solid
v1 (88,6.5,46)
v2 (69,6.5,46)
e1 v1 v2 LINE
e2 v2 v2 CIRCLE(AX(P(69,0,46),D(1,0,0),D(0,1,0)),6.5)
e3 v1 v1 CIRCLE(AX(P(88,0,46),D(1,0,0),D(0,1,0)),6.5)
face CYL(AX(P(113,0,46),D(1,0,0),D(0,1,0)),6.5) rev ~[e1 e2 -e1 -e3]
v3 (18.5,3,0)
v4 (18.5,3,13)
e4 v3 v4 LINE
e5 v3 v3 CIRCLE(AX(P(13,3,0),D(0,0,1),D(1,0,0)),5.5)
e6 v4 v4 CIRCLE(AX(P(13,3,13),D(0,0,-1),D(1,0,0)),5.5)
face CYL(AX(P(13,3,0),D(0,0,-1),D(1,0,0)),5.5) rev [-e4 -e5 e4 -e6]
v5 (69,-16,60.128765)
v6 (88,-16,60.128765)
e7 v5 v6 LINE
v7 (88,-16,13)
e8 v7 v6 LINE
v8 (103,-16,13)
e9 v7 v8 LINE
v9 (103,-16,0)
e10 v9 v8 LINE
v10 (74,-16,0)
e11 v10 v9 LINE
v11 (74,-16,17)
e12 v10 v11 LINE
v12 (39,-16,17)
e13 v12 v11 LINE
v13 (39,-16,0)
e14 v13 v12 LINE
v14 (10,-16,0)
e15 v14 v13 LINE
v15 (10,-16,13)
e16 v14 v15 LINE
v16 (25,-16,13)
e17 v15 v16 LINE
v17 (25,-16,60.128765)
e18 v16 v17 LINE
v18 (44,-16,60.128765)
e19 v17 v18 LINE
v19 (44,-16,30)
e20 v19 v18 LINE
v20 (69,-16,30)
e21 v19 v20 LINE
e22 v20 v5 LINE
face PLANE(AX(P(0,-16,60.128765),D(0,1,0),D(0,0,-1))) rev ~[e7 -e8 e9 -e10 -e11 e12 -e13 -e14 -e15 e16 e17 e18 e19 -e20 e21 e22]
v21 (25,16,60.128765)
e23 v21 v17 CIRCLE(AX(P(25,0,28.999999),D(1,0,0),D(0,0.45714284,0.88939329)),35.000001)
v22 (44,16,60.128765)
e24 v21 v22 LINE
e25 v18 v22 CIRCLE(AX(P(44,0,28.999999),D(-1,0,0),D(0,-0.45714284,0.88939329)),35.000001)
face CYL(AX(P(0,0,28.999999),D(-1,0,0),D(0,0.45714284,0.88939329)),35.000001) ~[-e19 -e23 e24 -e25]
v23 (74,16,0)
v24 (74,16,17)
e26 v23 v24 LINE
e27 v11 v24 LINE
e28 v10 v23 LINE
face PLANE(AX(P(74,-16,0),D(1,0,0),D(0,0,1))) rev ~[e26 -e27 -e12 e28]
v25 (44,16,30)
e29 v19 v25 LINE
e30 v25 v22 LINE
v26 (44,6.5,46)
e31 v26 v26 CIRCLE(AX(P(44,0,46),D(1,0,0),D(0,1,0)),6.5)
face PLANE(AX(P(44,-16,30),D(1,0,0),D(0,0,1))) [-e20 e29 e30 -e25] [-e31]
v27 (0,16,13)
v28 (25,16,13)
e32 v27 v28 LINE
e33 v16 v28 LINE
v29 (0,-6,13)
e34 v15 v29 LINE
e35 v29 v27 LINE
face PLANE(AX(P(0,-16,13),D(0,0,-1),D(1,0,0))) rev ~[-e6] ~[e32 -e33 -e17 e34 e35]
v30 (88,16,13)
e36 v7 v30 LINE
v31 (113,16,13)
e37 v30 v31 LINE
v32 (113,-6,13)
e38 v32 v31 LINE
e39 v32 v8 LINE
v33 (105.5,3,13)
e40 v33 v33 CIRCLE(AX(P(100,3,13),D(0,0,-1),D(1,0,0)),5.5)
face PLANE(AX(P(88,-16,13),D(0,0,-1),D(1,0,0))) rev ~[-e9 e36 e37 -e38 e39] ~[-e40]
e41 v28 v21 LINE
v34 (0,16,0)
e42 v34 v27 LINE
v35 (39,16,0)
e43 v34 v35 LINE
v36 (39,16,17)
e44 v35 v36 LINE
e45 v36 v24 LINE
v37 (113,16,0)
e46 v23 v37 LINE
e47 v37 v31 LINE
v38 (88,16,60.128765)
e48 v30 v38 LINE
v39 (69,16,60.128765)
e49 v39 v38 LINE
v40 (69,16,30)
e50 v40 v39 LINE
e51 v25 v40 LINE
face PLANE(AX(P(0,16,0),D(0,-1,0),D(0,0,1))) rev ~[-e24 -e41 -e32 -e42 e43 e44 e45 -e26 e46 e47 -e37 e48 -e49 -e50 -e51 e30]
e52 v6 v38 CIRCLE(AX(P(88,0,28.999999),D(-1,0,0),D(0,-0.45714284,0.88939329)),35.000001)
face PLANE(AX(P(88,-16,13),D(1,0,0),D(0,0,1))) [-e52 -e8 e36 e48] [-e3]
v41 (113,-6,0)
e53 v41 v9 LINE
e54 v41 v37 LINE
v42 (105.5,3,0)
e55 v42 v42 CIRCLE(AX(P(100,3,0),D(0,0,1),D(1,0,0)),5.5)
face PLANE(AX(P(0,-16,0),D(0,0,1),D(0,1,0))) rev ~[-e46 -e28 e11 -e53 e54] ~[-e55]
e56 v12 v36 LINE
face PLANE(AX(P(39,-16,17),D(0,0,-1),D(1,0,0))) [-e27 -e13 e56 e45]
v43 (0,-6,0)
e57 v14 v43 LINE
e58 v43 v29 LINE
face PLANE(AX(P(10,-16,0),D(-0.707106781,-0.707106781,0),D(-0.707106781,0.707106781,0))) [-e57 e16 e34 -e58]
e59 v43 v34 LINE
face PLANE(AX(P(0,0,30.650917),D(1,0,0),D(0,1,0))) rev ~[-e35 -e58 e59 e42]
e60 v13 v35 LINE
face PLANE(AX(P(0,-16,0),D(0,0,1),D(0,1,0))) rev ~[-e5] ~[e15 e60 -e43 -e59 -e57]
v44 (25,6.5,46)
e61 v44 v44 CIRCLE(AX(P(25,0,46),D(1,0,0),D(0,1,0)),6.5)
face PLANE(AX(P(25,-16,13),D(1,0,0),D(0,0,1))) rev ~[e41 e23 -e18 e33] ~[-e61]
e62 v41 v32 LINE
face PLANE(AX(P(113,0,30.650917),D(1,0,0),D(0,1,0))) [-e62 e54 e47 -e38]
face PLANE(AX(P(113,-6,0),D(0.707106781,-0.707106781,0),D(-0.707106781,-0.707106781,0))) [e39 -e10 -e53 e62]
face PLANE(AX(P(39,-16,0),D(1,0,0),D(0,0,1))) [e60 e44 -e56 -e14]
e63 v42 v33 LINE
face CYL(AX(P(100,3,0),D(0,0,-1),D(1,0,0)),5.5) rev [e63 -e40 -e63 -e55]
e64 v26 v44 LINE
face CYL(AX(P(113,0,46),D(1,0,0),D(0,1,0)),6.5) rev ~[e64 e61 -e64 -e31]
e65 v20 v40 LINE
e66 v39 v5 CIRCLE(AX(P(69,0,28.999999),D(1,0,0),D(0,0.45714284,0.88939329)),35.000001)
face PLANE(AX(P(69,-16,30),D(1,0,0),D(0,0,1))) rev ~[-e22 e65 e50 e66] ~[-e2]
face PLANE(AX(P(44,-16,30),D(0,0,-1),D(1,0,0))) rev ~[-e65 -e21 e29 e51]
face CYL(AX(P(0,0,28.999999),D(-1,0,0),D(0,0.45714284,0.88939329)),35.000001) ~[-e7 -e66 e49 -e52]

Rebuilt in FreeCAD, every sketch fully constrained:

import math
import FreeCAD as App
import Part
import Sketcher


def add_polygon(sketch, points):
    """Adds a closed chain of lines whose ends are joined by coincident constraints."""
    first, n = sketch.GeometryCount, len(points)
    for a, b in zip(points, points[1:] + points[:1]):
        sketch.addGeometry(Part.LineSegment(App.Vector(*a, 0), App.Vector(*b, 0)), False)
    for i in range(n):
        sketch.addConstraint(Sketcher.Constraint("Coincident", first + i, 2, first + (i + 1) % n, 1))

doc = App.newDocument("Part")
body = doc.addObject("PartDesign::Body", "Body")

sketch1 = body.newObject("Sketcher::SketchObject", "Sketch")
sketch1.AttachmentSupport = (doc.getObject("YZ_Plane"), [""])
sketch1.MapMode = "FlatFace"
sketch1.addGeometry([
    Part.ArcOfCircle(Part.Circle(App.Vector(0, 29, 0), App.Vector(0, 0, 1), 35), math.radians(63), math.radians(117)),
    Part.LineSegment(App.Vector(-16, 60, 0), App.Vector(-16, 0, 0)),
    Part.LineSegment(App.Vector(-16, 0, 0), App.Vector(16, 0, 0)),
    Part.LineSegment(App.Vector(16, 0, 0), App.Vector(16, 60, 0)),
], False)
sketch1.addConstraint([
    Sketcher.Constraint("Coincident", 0, 2, 1, 1),
    Sketcher.Constraint("Coincident", 1, 2, 2, 1),
    Sketcher.Constraint("Coincident", 2, 2, 3, 1),
    Sketcher.Constraint("Coincident", 3, 2, 0, 1),
    Sketcher.Constraint("Vertical", 1),
    Sketcher.Constraint("Horizontal", 2),
    Sketcher.Constraint("Vertical", 3),
    Sketcher.Constraint("Symmetric", 1, 2, 2, 2, -1, 1),
    Sketcher.Constraint("PointOnObject", 0, 3, -2),
    Sketcher.Constraint("Radius", 0, 35.000001),
    Sketcher.Constraint("DistanceX", 2, 1, 2, 2, 32.0),
    Sketcher.Constraint("DistanceY", -1, 1, 0, 3, 28.999999),
])
pad1 = body.newObject("PartDesign::Pad", "Pad")
pad1.Profile = sketch1
pad1.Length = 113

sketch2 = body.newObject("Sketcher::SketchObject", "Sketch001")
sketch2.AttachmentSupport = (doc.getObject("YZ_Plane"), [""])
sketch2.MapMode = "FlatFace"
sketch2.AttachmentOffset = App.Placement(App.Vector(0, 0, 113), App.Rotation())
sketch2.addGeometry(Part.Circle(App.Vector(0, 46, 0), App.Vector(0, 0, 1), 6), False)
sketch2.addConstraint([
    Sketcher.Constraint("PointOnObject", 0, 3, -2),
    Sketcher.Constraint("Diameter", 0, 13.0),
    Sketcher.Constraint("DistanceY", -1, 1, 0, 3, 46.0),
])
pocket1 = body.newObject("PartDesign::Pocket", "Pocket")
pocket1.Profile = sketch2
pocket1.Type = "ThroughAll"

sketch3 = body.newObject("Sketcher::SketchObject", "Sketch002")
sketch3.AttachmentSupport = (doc.getObject("XZ_Plane"), [""])
sketch3.MapMode = "FlatFace"
sketch3.AttachmentOffset = App.Placement(App.Vector(0, 0, 16), App.Rotation())
add_polygon(sketch3, [(0, 64), (0, 13), (25, 13), (25, 64)])
add_polygon(sketch3, [(88, 64), (88, 13), (113, 13), (113, 64)])
sketch3.addConstraint([
    Sketcher.Constraint("Vertical", 0),
    Sketcher.Constraint("Horizontal", 1),
    Sketcher.Constraint("Vertical", 2),
    Sketcher.Constraint("Horizontal", 3),
    Sketcher.Constraint("Vertical", 4),
    Sketcher.Constraint("Horizontal", 5),
    Sketcher.Constraint("Vertical", 6),
    Sketcher.Constraint("Horizontal", 7),
    Sketcher.Constraint("PointOnObject", 0, 2, -2),
    Sketcher.Constraint("Horizontal", 1, 2, 4, 2),
    Sketcher.Constraint("Horizontal", 3, 2, 6, 2),
    Sketcher.Constraint("Equal", 3, 5),
    Sketcher.Constraint("DistanceX", 1, 1, 1, 2, 25.0),
    Sketcher.Constraint("DistanceY", 0, 2, 0, 1, 51.0),
    Sketcher.Constraint("DistanceY", -1, 1, 0, 2, 13.0),
    Sketcher.Constraint("DistanceX", -1, 1, 4, 2, 88.0),
])
pocket2 = body.newObject("PartDesign::Pocket", "Pocket001")
pocket2.Profile = sketch3
pocket2.Type = "ThroughAll"

sketch4 = body.newObject("Sketcher::SketchObject", "Sketch003")
sketch4.AttachmentSupport = (doc.getObject("XZ_Plane"), [""])
sketch4.MapMode = "FlatFace"
sketch4.AttachmentOffset = App.Placement(App.Vector(0, 0, 16), App.Rotation())
add_polygon(sketch4, [(44, 64), (44, 30), (69, 30), (69, 64)])
sketch4.addConstraint([
    Sketcher.Constraint("Vertical", 0),
    Sketcher.Constraint("Horizontal", 1),
    Sketcher.Constraint("Vertical", 2),
    Sketcher.Constraint("Horizontal", 3),
    Sketcher.Constraint("DistanceX", 1, 1, 1, 2, 25.0),
    Sketcher.Constraint("DistanceY", 0, 2, 0, 1, 34.0),
    Sketcher.Constraint("DistanceX", -1, 1, 0, 2, 44.0),
    Sketcher.Constraint("DistanceY", -1, 1, 0, 2, 30.0),
])
pocket3 = body.newObject("PartDesign::Pocket", "Pocket002")
pocket3.Profile = sketch4
pocket3.Type = "ThroughAll"

sketch5 = body.newObject("Sketcher::SketchObject", "Sketch004")
sketch5.AttachmentSupport = (doc.getObject("XZ_Plane"), [""])
sketch5.MapMode = "FlatFace"
sketch5.AttachmentOffset = App.Placement(App.Vector(0, 0, 16), App.Rotation())
add_polygon(sketch5, [(39, 17), (39, 0), (74, 0), (74, 17)])
sketch5.addConstraint([
    Sketcher.Constraint("Vertical", 0),
    Sketcher.Constraint("Horizontal", 1),
    Sketcher.Constraint("Vertical", 2),
    Sketcher.Constraint("Horizontal", 3),
    Sketcher.Constraint("PointOnObject", 0, 2, -1),
    Sketcher.Constraint("DistanceX", 1, 1, 1, 2, 35.0),
    Sketcher.Constraint("DistanceY", 0, 2, 0, 1, 17.0),
    Sketcher.Constraint("DistanceX", -1, 1, 0, 2, 39.0),
])
pocket4 = body.newObject("PartDesign::Pocket", "Pocket003")
pocket4.Profile = sketch5
pocket4.Type = "ThroughAll"

sketch6 = body.newObject("Sketcher::SketchObject", "Sketch005")
sketch6.AttachmentSupport = (doc.getObject("XY_Plane"), [""])
sketch6.MapMode = "FlatFace"
sketch6.addGeometry(Part.Circle(App.Vector(13, 3, 0), App.Vector(0, 0, 1), 6), False)
sketch6.addGeometry(Part.Circle(App.Vector(100, 3, 0), App.Vector(0, 0, 1), 6), False)
add_polygon(sketch6, [(10, -16), (0, -6), (0, -16)])
add_polygon(sketch6, [(113, -16), (113, -6), (103, -16)])
sketch6.addConstraint([
    Sketcher.Constraint("Vertical", 3),
    Sketcher.Constraint("Horizontal", 4),
    Sketcher.Constraint("Vertical", 5),
    Sketcher.Constraint("Horizontal", 7),
    Sketcher.Constraint("Equal", 0, 1),
    Sketcher.Constraint("PointOnObject", 2, 2, -2),
    Sketcher.Constraint("Perpendicular", 2, 6),
    Sketcher.Constraint("Horizontal", 0, 3, 1, 3),
    Sketcher.Constraint("Horizontal", 2, 2, 5, 2),
    Sketcher.Constraint("Horizontal", 4, 2, 6, 2),
    Sketcher.Constraint("Equal", 4, 7),
    Sketcher.Constraint("Diameter", 0, 11.0),
    Sketcher.Constraint("DistanceX", 4, 1, 4, 2, 10.0),
    Sketcher.Constraint("DistanceX", -1, 1, 0, 3, 13.0),
    Sketcher.Constraint("DistanceY", -1, 1, 0, 3, 3.0),
    Sketcher.Constraint("DistanceX", -1, 1, 1, 3, 100.0),
    Sketcher.Constraint("DistanceY", 2, 2, -1, 1, 6.0),
    Sketcher.Constraint("DistanceX", -1, 1, 5, 2, 113.0),
])
pocket5 = body.newObject("PartDesign::Pocket", "Pocket004")
pocket5.Profile = sketch6
pocket5.Type = "ThroughAll"
pocket5.Reversed = True

doc.recompute()
